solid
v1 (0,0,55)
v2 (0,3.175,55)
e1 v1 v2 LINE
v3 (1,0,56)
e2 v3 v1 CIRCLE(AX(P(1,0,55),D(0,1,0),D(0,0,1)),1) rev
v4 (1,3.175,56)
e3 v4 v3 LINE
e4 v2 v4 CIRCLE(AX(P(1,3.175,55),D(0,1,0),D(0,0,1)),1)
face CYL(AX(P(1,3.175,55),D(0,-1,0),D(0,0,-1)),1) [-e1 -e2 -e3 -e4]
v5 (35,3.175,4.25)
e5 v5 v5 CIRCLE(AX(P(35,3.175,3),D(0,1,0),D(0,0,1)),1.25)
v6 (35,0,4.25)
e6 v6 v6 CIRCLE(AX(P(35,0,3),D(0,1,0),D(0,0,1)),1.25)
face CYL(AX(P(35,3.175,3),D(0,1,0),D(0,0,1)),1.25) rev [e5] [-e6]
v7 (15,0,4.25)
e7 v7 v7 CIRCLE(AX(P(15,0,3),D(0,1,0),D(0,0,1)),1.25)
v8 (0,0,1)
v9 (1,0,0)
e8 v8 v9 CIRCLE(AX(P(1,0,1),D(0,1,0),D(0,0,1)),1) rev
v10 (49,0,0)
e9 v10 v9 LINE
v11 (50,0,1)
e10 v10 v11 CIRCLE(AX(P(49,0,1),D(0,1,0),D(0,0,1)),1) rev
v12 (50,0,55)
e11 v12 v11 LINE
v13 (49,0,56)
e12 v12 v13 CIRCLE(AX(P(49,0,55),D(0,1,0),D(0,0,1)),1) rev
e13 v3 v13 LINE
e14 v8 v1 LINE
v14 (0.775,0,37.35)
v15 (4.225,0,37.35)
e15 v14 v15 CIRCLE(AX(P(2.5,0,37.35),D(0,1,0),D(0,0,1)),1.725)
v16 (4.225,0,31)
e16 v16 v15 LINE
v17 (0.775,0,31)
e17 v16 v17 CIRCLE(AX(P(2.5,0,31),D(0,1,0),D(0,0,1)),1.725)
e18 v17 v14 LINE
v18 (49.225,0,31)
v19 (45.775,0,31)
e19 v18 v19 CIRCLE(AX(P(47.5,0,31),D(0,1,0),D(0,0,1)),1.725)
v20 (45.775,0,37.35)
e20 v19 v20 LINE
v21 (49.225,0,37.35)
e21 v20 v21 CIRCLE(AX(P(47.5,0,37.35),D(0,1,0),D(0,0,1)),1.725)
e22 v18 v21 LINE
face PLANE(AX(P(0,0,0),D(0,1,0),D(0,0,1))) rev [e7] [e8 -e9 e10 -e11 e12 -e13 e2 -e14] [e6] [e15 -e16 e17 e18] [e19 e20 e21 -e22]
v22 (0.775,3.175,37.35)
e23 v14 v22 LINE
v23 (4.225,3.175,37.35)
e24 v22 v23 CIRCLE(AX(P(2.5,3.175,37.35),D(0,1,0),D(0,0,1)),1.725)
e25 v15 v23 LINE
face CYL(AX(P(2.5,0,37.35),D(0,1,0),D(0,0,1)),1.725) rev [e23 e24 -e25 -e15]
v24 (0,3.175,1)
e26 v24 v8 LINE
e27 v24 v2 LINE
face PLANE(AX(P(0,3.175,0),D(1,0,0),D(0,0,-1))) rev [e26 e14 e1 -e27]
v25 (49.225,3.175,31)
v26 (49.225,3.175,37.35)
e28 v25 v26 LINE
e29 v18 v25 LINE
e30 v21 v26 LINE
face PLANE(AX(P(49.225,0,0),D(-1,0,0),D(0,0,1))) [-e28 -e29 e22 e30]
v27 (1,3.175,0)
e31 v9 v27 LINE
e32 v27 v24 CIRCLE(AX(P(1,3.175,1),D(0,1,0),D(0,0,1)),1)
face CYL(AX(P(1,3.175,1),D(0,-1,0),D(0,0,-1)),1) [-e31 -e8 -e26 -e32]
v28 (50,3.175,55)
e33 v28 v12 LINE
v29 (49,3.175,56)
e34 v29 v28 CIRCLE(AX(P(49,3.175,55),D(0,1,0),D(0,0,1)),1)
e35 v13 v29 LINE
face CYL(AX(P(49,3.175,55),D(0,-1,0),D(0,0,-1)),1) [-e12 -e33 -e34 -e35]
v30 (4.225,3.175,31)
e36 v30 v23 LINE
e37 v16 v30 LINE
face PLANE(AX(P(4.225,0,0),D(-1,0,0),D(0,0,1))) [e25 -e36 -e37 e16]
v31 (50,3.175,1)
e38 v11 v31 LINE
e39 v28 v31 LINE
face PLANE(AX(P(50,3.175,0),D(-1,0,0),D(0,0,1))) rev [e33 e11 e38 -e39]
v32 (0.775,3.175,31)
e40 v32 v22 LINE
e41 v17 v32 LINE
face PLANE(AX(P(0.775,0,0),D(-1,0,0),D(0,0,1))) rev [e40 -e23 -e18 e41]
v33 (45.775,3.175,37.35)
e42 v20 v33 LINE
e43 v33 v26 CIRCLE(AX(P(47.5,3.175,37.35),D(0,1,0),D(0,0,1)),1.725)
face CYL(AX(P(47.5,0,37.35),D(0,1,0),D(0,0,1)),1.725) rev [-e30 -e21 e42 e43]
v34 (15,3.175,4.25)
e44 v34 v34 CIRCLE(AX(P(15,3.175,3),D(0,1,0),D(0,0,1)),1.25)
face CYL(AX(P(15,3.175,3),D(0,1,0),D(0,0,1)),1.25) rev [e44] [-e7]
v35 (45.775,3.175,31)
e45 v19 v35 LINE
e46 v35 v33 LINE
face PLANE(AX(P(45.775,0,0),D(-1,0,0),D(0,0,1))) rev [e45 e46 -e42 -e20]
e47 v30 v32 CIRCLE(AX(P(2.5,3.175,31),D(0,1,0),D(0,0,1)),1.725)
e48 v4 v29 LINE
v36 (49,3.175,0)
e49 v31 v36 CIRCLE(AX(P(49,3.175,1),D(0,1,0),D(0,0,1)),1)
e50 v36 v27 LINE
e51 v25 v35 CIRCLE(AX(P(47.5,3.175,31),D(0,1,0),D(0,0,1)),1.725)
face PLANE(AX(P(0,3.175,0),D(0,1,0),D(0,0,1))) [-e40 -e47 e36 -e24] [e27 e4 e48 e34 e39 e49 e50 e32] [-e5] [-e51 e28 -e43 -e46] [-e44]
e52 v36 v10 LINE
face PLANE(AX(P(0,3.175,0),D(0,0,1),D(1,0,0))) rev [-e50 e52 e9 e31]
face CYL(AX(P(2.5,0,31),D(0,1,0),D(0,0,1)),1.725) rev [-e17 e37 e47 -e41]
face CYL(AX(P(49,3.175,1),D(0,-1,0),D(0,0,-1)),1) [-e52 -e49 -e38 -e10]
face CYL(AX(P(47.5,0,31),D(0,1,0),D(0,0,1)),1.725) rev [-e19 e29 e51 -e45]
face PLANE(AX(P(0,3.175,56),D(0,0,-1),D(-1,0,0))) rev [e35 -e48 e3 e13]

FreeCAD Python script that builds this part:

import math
import FreeCAD as App
import Part
import Sketcher

V = App.Vector
Q = App.Units.Quantity


def edges_at(feature, points):
    """Names of the edges that pass closest to the given points."""
    edges = feature.Shape.Edges
    near = lambda p: min(range(len(edges)), key=lambda i: edges[i].distToShape(Part.Vertex(*p))[0])
    return sorted({f"Edge{near(p) + 1}" for p in points})

doc = App.newDocument("Part")
params = doc.addObject("Spreadsheet::Sheet", "Params")
for row, (alias, value) in enumerate([
    ("sketch1_diameter", "2.2 mm"),
    ("sketch1_width", "50 mm"),
    ("sketch1_height", "56 mm"),
    ("pad1_length", "3.175 mm"),
    ("fillet_radius", "1 mm"),
    ("sketch2_diameter", "2.5 mm"),
    ("hole_diameter", "2.5 mm"),
    ("sketch3_height", "6.35 mm"),
], start=1):
    params.set(f"A{row}", alias)
    params.set(f"B{row}", "=" + value)
    params.setAlias(f"B{row}", alias)

body = doc.addObject("PartDesign::Body", "Body")

sketch1 = body.newObject("Sketcher::SketchObject", "Sketch")
sketch1.AttachmentSupport = (doc.getObject("XZ_Plane"), [""])
sketch1.MapMode = "FlatFace"
sketch1.addGeometry([
    Part.LineSegment(V(0, 0, 0), V(0, 56, 0)),
    Part.LineSegment(V(0, 56, 0), V(50, 56, 0)),
    Part.LineSegment(V(50, 56, 0), V(50, 0, 0)),
    Part.LineSegment(V(50, 0, 0), V(0, 0, 0)),
    Part.Circle(V(15, 3, 0), V(0, 0, 1), 1.1),
    Part.Circle(V(35, 3, 0), V(0, 0, 1), 1.1),
], False)
sketch1.addConstraint([
    Sketcher.Constraint("Coincident", 0, 2, 1, 1),
    Sketcher.Constraint("Coincident", 1, 2, 2, 1),
    Sketcher.Constraint("Coincident", 2, 2, 3, 1),
    Sketcher.Constraint("Coincident", 3, 2, 0, 1),
    Sketcher.Constraint("Vertical", 0),
    Sketcher.Constraint("Horizontal", 1),
    Sketcher.Constraint("Vertical", 2),
    Sketcher.Constraint("Horizontal", 3),
    Sketcher.Constraint("Coincident", 3, 2, -1, 1),
    Sketcher.Constraint("Equal", 4, 5),
    Sketcher.Constraint("Horizontal", 4, 3, 5, 3),
    Sketcher.Constraint("Diameter", 4, Q("2.2 mm")),
    Sketcher.Constraint("DistanceX", 1, 1, 1, 2, Q("50 mm")),
    Sketcher.Constraint("DistanceY", 0, 1, 0, 2, Q("56 mm")),
    Sketcher.Constraint("DistanceX", -1, 1, 4, 3, Q("15 mm")),
    Sketcher.Constraint("DistanceY", -1, 1, 4, 3, Q("3 mm")),
    Sketcher.Constraint("DistanceX", -1, 1, 5, 3, Q("35 mm")),
])
sketch1.setExpression("Constraints[11]", "Params.sketch1_diameter")
sketch1.setExpression("Constraints[12]", "Params.sketch1_width")
sketch1.setExpression("Constraints[13]", "Params.sketch1_height")
pad1 = body.newObject("PartDesign::Pad", "Pad")
pad1.Profile = sketch1
pad1.setExpression("Length", "Params.pad1_length")
pad1.Reversed = True
doc.recompute()

fillet = body.newObject("PartDesign::Fillet", "Fillet")
fillet.Base = (pad1, edges_at(pad1, [
    (0, 1.587, 0),
    (50, 1.587, 0),
    (50, 1.587, 56),
    (0, 1.587, 56),
]))
fillet.setExpression("Radius", "Params.fillet_radius")

sketch2 = body.newObject("Sketcher::SketchObject", "Sketch001")
sketch2.AttachmentSupport = (doc.getObject("XZ_Plane"), [""])
sketch2.MapMode = "FlatFace"
sketch2.AttachmentOffset = App.Placement(V(0, 0, -3.175), App.Rotation())
sketch2.addGeometry([
    Part.Circle(V(15, 3, 0), V(0, 0, 1), 1.2),
    Part.Circle(V(35, 3, 0), V(0, 0, 1), 1.2),
], False)
sketch2.addConstraint([
    Sketcher.Constraint("Equal", 0, 1),
    Sketcher.Constraint("Horizontal", 0, 3, 1, 3),
    Sketcher.Constraint("Diameter", 0, Q("2.5 mm")),
    Sketcher.Constraint("DistanceX", -1, 1, 0, 3, Q("15 mm")),
    Sketcher.Constraint("DistanceY", -1, 1, 0, 3, Q("3 mm")),
    Sketcher.Constraint("DistanceX", -1, 1, 1, 3, Q("35 mm")),
])
sketch2.setExpression("Constraints[2]", "Params.sketch2_diameter")
doc.recompute()
hole = body.newObject("PartDesign::Hole", "Hole")
hole.Profile = sketch2
hole.ThreadType = "None"
hole.setExpression("Diameter", "Params.hole_diameter")
hole.DepthType = "ThroughAll"
hole.Reversed = True

sketch3 = body.newObject("Sketcher::SketchObject", "Sketch002")
sketch3.AttachmentSupport = (doc.getObject("XZ_Plane"), [""])
sketch3.MapMode = "FlatFace"
sketch3.AttachmentOffset = App.Placement(V(0, 0, -3.175), App.Rotation())
sketch3.addGeometry([
    Part.LineSegment(V(0.8, 31, 0), V(0.8, 37.4, 0)),
    Part.ArcOfCircle(Part.Circle(V(2.5, 37.4, 0), V(0, 0, 1), 1.7), math.radians(0), math.radians(180)),
    Part.LineSegment(V(4.2, 37.4, 0), V(4.2, 31, 0)),
    Part.ArcOfCircle(Part.Circle(V(2.5, 31, 0), V(0, 0, 1), 1.7), math.radians(180), math.radians(360)),
    Part.LineSegment(V(45.8, 31, 0), V(45.8, 37.4, 0)),
    Part.ArcOfCircle(Part.Circle(V(47.5, 37.4, 0), V(0, 0, 1), 1.7), math.radians(0), math.radians(180)),
    Part.LineSegment(V(49.2, 37.4, 0), V(49.2, 31, 0)),
    Part.ArcOfCircle(Part.Circle(V(47.5, 31, 0), V(0, 0, 1), 1.7), math.radians(180), math.radians(360)),
], False)
sketch3.addConstraint([
    Sketcher.Constraint("Tangent", 0, 2, 1, 2),
    Sketcher.Constraint("Tangent", 1, 1, 2, 1),
    Sketcher.Constraint("Tangent", 2, 2, 3, 2),
    Sketcher.Constraint("Tangent", 3, 1, 0, 1),
    Sketcher.Constraint("Tangent", 4, 2, 5, 2),
    Sketcher.Constraint("Tangent", 5, 1, 6, 1),
    Sketcher.Constraint("Tangent", 6, 2, 7, 2),
    Sketcher.Constraint("Tangent", 7, 1, 4, 1),
    Sketcher.Constraint("Vertical", 0),
    Sketcher.Constraint("Vertical", 2),
    Sketcher.Constraint("Vertical", 4),
    Sketcher.Constraint("Vertical", 6),
    Sketcher.Constraint("Equal", 3, 5),
    Sketcher.Constraint("Horizontal", 1, 3, 5, 3),
    Sketcher.Constraint("Horizontal", 3, 3, 7, 3),
    Sketcher.Constraint("DistanceY", -1, 1, 3, 3, Q("31 mm")),
    Sketcher.Constraint("Radius", 1, Q("1.725 mm")),
    Sketcher.Constraint("DistanceX", 1, 3, 5, 3, Q("45 mm")),
    Sketcher.Constraint("DistanceY", 0, 1, 0, 2, Q("6.35 mm")),
    Sketcher.Constraint("DistanceX", -1, 1, 1, 3, Q("2.5 mm")),
])
sketch3.setExpression("Constraints[18]", "Params.sketch3_height")
pocket1 = body.newObject("PartDesign::Pocket", "Pocket")
pocket1.Profile = sketch3
pocket1.Type = "ThroughAll"
pocket1.Midplane = True

doc.recompute()
